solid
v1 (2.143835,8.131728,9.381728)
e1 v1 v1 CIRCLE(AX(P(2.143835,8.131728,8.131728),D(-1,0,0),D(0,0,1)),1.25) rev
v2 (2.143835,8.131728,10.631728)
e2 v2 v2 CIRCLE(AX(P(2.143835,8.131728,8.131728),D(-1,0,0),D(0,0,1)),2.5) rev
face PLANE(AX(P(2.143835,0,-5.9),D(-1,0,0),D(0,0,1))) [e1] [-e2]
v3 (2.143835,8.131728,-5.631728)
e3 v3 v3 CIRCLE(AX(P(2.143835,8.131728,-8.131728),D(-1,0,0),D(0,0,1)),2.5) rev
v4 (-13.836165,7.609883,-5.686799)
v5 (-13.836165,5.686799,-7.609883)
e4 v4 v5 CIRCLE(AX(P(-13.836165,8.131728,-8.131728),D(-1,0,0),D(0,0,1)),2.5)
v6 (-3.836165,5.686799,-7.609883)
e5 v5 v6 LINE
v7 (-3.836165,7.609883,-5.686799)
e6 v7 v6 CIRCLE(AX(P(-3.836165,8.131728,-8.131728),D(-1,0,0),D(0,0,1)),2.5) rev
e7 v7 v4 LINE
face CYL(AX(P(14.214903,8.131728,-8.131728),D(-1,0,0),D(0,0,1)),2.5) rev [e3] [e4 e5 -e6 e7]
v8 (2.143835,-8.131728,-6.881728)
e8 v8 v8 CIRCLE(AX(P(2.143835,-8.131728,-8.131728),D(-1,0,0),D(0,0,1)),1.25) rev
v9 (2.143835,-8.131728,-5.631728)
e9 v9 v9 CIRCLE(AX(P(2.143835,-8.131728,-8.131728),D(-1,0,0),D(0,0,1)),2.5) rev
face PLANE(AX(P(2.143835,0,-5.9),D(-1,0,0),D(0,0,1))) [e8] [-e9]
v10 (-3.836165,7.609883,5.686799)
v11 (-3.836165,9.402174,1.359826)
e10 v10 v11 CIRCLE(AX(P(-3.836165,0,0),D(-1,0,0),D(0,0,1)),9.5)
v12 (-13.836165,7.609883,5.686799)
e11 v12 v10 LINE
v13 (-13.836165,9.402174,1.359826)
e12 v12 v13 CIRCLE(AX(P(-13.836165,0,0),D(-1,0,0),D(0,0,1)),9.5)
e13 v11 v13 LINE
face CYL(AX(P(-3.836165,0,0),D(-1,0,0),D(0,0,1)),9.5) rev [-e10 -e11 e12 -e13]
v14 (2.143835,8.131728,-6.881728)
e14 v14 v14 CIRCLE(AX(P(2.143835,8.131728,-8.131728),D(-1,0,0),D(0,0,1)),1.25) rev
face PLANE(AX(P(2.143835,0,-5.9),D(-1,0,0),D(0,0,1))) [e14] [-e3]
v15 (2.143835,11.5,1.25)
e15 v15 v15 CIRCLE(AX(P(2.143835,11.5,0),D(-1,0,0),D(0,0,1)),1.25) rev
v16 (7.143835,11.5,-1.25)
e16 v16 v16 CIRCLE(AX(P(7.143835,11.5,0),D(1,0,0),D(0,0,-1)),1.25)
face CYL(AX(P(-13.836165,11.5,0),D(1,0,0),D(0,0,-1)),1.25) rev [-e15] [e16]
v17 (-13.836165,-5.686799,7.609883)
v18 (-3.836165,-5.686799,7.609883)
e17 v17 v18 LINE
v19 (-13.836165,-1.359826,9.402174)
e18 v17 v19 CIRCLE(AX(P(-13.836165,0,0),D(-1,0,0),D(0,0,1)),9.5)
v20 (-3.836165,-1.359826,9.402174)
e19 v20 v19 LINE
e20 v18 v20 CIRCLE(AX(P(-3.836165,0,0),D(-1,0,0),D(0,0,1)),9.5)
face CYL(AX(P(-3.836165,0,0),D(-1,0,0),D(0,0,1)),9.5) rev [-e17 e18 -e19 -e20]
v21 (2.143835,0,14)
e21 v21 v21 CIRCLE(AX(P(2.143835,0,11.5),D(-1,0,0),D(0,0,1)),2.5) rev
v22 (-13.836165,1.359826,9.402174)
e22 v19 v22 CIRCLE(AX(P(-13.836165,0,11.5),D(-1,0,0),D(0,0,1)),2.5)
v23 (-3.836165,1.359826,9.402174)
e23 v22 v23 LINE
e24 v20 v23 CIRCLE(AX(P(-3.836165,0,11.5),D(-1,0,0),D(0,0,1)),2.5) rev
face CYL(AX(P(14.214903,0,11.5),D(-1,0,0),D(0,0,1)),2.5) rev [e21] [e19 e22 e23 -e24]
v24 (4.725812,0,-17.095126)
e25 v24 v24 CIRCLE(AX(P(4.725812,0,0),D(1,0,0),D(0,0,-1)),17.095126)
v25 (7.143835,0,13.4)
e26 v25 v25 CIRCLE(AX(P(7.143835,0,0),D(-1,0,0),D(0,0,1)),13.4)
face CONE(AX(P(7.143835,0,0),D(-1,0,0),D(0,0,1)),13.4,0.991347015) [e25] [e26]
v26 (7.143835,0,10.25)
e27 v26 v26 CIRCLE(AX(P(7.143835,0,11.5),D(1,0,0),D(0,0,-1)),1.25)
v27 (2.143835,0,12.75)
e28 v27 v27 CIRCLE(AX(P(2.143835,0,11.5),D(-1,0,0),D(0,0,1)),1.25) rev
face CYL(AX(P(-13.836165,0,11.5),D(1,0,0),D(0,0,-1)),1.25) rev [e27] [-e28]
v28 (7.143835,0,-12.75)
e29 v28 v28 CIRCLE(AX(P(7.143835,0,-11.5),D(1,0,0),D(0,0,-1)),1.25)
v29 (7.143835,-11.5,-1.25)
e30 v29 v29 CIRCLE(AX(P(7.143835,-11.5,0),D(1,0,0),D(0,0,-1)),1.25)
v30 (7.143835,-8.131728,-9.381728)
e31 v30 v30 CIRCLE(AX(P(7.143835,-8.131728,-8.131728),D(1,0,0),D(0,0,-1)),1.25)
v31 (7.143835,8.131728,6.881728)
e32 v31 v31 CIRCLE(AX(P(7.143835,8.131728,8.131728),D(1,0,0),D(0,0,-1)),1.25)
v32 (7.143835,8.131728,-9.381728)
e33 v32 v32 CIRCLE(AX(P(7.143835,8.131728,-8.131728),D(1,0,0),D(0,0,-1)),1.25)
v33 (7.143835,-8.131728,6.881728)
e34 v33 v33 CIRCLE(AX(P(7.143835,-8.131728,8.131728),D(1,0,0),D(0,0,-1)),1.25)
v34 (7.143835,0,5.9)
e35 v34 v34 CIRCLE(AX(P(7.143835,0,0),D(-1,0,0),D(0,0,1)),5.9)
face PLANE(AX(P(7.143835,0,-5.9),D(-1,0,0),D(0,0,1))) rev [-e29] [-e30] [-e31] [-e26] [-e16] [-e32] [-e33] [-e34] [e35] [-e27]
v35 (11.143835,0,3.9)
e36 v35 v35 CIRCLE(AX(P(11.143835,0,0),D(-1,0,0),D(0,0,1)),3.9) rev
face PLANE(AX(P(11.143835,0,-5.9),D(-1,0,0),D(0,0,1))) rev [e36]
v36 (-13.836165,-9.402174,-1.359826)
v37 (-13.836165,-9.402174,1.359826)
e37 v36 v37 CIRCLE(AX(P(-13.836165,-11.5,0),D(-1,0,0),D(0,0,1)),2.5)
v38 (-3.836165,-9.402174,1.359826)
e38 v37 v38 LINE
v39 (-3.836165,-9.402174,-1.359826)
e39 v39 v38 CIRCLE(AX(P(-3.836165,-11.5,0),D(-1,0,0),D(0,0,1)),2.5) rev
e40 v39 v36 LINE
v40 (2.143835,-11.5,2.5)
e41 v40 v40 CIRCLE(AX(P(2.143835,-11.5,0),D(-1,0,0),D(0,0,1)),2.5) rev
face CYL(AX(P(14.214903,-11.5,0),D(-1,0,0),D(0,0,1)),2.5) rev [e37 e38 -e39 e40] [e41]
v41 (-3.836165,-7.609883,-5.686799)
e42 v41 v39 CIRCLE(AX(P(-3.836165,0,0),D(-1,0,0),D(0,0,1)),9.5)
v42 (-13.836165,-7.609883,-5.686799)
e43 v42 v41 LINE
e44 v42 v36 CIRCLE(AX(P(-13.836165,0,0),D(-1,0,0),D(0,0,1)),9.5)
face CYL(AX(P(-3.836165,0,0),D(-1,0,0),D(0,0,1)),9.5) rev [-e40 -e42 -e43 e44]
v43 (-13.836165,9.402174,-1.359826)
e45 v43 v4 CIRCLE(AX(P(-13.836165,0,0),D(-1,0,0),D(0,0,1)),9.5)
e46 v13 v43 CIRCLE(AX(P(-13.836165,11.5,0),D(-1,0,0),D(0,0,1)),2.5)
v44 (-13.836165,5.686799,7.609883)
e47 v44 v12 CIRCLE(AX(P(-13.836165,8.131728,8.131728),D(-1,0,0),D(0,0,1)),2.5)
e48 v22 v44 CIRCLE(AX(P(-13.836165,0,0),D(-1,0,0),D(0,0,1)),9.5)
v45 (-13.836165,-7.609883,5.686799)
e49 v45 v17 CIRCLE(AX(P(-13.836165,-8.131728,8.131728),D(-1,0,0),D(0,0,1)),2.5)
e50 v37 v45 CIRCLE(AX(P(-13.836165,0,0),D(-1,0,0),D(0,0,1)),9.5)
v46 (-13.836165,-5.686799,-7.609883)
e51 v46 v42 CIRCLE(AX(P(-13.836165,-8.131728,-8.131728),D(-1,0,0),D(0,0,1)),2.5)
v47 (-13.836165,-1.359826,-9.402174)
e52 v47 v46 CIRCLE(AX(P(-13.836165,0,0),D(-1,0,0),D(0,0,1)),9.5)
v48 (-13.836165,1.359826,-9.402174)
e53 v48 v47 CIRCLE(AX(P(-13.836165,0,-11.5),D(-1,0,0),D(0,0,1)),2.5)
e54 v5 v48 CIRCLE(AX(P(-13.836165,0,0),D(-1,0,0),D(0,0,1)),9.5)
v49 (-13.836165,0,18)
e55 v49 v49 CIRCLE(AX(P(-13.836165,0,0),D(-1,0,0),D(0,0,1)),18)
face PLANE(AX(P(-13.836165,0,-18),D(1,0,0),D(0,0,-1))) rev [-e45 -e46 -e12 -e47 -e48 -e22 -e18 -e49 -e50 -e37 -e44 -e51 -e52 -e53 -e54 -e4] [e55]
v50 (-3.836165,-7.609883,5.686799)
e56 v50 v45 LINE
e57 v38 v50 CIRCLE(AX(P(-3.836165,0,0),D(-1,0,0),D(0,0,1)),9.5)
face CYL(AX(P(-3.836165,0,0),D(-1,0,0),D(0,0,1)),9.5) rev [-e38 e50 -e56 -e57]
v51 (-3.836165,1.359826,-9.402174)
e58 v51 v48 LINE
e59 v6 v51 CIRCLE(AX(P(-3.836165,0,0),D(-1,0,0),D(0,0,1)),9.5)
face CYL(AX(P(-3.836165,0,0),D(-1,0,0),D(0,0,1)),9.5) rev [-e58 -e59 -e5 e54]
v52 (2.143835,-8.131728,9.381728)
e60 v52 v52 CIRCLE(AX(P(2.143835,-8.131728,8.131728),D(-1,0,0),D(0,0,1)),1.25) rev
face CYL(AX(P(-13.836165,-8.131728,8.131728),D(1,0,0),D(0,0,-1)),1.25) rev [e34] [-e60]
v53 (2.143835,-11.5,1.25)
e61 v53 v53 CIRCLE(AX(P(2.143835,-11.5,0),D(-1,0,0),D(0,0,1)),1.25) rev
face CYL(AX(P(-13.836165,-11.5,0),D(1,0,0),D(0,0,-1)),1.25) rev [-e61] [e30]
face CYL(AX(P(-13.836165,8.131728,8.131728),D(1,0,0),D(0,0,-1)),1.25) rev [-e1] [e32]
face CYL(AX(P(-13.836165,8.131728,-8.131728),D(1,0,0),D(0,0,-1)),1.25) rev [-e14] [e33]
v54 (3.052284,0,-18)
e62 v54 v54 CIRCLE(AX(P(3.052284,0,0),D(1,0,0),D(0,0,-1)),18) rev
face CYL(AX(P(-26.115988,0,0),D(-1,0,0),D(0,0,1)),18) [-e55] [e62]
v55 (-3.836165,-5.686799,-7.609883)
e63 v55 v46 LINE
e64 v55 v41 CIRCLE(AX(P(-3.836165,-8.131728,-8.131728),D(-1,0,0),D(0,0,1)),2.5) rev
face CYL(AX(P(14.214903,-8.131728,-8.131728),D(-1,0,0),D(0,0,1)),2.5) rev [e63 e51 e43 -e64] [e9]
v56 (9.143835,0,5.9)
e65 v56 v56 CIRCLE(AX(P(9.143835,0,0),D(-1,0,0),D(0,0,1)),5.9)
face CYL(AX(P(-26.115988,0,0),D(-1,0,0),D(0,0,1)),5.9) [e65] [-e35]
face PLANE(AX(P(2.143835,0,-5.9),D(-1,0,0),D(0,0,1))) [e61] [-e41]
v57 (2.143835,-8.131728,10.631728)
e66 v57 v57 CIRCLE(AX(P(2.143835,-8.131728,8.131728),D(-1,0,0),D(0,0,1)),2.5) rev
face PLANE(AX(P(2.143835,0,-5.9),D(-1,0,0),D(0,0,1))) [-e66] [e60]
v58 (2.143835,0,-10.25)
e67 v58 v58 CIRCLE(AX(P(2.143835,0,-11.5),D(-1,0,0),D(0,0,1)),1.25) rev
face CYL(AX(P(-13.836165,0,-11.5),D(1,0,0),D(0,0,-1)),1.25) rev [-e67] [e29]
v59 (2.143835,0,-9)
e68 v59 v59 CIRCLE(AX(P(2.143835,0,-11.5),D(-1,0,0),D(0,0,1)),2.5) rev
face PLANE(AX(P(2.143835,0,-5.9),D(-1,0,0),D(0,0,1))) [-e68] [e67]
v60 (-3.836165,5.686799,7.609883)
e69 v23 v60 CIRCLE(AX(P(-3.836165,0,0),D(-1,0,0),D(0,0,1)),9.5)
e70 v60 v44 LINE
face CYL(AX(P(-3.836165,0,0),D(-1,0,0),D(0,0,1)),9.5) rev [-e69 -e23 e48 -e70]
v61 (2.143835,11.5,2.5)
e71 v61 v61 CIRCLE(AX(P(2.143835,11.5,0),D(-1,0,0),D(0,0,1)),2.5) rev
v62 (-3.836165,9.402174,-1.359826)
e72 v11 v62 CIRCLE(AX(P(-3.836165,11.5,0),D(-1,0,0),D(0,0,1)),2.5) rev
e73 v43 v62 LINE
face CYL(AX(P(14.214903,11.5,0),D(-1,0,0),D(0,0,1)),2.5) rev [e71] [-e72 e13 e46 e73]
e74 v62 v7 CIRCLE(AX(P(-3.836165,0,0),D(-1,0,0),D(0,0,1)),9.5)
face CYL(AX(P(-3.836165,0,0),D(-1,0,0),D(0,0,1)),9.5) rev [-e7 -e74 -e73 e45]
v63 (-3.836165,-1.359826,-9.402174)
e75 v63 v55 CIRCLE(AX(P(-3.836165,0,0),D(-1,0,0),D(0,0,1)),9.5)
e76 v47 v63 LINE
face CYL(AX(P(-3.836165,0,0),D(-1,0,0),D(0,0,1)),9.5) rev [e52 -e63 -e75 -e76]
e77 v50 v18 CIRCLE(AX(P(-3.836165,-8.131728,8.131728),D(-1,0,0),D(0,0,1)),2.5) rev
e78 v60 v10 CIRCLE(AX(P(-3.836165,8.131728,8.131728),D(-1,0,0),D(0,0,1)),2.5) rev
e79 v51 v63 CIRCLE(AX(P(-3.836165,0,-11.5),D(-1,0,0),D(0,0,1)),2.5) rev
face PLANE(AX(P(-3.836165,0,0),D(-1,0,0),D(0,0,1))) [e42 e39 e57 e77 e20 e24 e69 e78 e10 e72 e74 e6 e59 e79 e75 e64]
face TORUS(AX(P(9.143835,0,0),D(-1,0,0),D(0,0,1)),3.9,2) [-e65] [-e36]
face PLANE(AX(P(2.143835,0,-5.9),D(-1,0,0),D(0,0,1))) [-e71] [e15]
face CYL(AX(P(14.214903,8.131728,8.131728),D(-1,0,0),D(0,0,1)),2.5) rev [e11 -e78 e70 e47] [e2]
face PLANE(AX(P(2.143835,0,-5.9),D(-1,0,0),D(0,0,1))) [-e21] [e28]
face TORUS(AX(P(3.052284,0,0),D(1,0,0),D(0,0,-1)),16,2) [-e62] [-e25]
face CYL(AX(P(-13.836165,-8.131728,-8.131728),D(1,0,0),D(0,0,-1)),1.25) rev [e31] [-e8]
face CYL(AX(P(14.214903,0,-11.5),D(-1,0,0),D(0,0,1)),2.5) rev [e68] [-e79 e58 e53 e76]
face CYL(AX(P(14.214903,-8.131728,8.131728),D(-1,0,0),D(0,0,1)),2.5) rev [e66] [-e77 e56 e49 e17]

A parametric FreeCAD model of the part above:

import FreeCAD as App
import Part
import Sketcher

V = App.Vector
Q = App.Units.Quantity


def edges_at(feature, points):
    """Names of the edges that pass closest to the given points."""
    edges = feature.Shape.Edges
    near = lambda p: min(range(len(edges)), key=lambda i: edges[i].distToShape(Part.Vertex(*p))[0])
    return sorted({f"Edge{near(p) + 1}" for p in points})

doc = App.newDocument("Part")
body = doc.addObject("PartDesign::Body", "Body")

# Sketch on XZ plane
sketch1 = doc.addObject("Sketcher::SketchObject", "Sketch")
body.addObject(sketch1)
sketch1.AttachmentSupport = (doc.XZ_Plane, [""])
sketch1.MapMode = "FlatFace"
sketch1.addGeometry(Part.LineSegment(V(7.1, -5.9, 0), V(7.1, -13.4, 0)), False)
sketch1.addGeometry(Part.LineSegment(V(7.1, -13.4, 0), V(4.1, -18, 0)), False)
sketch1.addGeometry(Part.LineSegment(V(4.1, -18, 0), V(-13.8, -18, 0)), False)
sketch1.addGeometry(Part.LineSegment(V(-13.8, -18, 0), V(-13.8, 0, 0)), False)
sketch1.addGeometry(Part.LineSegment(V(-13.8, 0, 0), V(11.1, 0, 0)), False)
sketch1.addGeometry(Part.LineSegment(V(11.1, 0, 0), V(11.1, -5.9, 0)), False)
sketch1.addGeometry(Part.LineSegment(V(11.1, -5.9, 0), V(7.1, -5.9, 0)), False)
sketch1.addConstraint(Sketcher.Constraint("Coincident", 0, 2, 1, 1))
sketch1.addConstraint(Sketcher.Constraint("Coincident", 1, 2, 2, 1))
sketch1.addConstraint(Sketcher.Constraint("Coincident", 2, 2, 3, 1))
sketch1.addConstraint(Sketcher.Constraint("Coincident", 3, 2, 4, 1))
sketch1.addConstraint(Sketcher.Constraint("Coincident", 4, 2, 5, 1))
sketch1.addConstraint(Sketcher.Constraint("Coincident", 5, 2, 6, 1))
sketch1.addConstraint(Sketcher.Constraint("Coincident", 6, 2, 0, 1))
sketch1.addConstraint(Sketcher.Constraint("Vertical", 0))
sketch1.addConstraint(Sketcher.Constraint("Horizontal", 2))
sketch1.addConstraint(Sketcher.Constraint("Vertical", 3))
sketch1.addConstraint(Sketcher.Constraint("Horizontal", 4))
sketch1.addConstraint(Sketcher.Constraint("Vertical", 5))
sketch1.addConstraint(Sketcher.Constraint("Horizontal", 6))
sketch1.addConstraint(Sketcher.Constraint("PointOnObject", 3, 2, -1))
sketch1.addConstraint(Sketcher.Constraint("DistanceX", 6, 2, 6, 1, 4.0))
sketch1.addConstraint(Sketcher.Constraint("DistanceY", 3, 1, 3, 2, 18.0))
sketch1.addConstraint(Sketcher.Constraint("DistanceY", 0, 2, 0, 1, 7.5))
sketch1.addConstraint(Sketcher.Constraint("DistanceY", 5, 2, 5, 1, 5.9))
sketch1.addConstraint(Sketcher.Constraint("Angle", 1, Q("-123.2 deg")))
sketch1.addConstraint(Sketcher.Constraint("DistanceX", 4, 1, 4, 2, 24.98))
sketch1.addConstraint(Sketcher.Constraint("DistanceX", -1, 1, 1, 2, 4.13368))
revolution = doc.addObject("PartDesign::Revolution", "Revolution")
body.addObject(revolution)
revolution.Profile = sketch1
revolution.ReferenceAxis = (sketch1, ["H_Axis"])
revolution.Angle = 360

# Sketch on YZ plane
sketch2 = doc.addObject("Sketcher::SketchObject", "Sketch001")
body.addObject(sketch2)
sketch2.AttachmentSupport = (doc.YZ_Plane, [""])
sketch2.MapMode = "FlatFace"
sketch2.AttachmentOffset = App.Placement(V(0, 0, 7.143835), App.Rotation())
sketch2.addGeometry(Part.Circle(V(11.5, 0, 0), V(0, 0, 1), 1.2), False)
sketch2.addGeometry(Part.Circle(V(8.1, -8.1, 0), V(0, 0, 1), 1.2), False)
sketch2.addGeometry(Part.Circle(V(0, -11.5, 0), V(0, 0, 1), 1.2), False)
sketch2.addGeometry(Part.Circle(V(-8.1, -8.1, 0), V(0, 0, 1), 1.2), False)
sketch2.addGeometry(Part.Circle(V(-11.5, 0, 0), V(0, 0, 1), 1.2), False)
sketch2.addGeometry(Part.Circle(V(-8.1, 8.1, 0), V(0, 0, 1), 1.2), False)
sketch2.addGeometry(Part.Circle(V(0, 11.5, 0), V(0, 0, 1), 1.2), False)
sketch2.addGeometry(Part.Circle(V(8.1, 8.1, 0), V(0, 0, 1), 1.2), False)
sketch2.addConstraint(Sketcher.Constraint("Equal", 0, 1))
sketch2.addConstraint(Sketcher.Constraint("Equal", 1, 2))
sketch2.addConstraint(Sketcher.Constraint("Equal", 2, 3))
sketch2.addConstraint(Sketcher.Constraint("Equal", 3, 4))
sketch2.addConstraint(Sketcher.Constraint("Equal", 4, 5))
sketch2.addConstraint(Sketcher.Constraint("Equal", 5, 6))
sketch2.addConstraint(Sketcher.Constraint("Equal", 6, 7))
sketch2.addConstraint(Sketcher.Constraint("Symmetric", 0, 3, 4, 3, -1, 1))
sketch2.addConstraint(Sketcher.Constraint("Symmetric", 1, 3, 5, 3, -1, 1))
sketch2.addConstraint(Sketcher.Constraint("Symmetric", 2, 3, 6, 3, -1, 1))
sketch2.addConstraint(Sketcher.Constraint("Symmetric", 3, 3, 7, 3, -1, 1))
sketch2.addConstraint(Sketcher.Constraint("Symmetric", 1, 3, 3, 3, -2))
sketch2.addConstraint(Sketcher.Constraint("PointOnObject", 0, 3, -1))
sketch2.addConstraint(Sketcher.Constraint("PointOnObject", 2, 3, -2))
sketch2.addConstraint(Sketcher.Constraint("Diameter", 0, 2.5))
sketch2.addConstraint(Sketcher.Constraint("DistanceX", 4, 3, 0, 3, 23.0))
sketch2.addConstraint(Sketcher.Constraint("DistanceY", 2, 3, -1, 1, 11.5))
sketch2.addConstraint(Sketcher.Constraint("DistanceX", -1, 1, 1, 3, 8.131728))
sketch2.addConstraint(Sketcher.Constraint("DistanceY", 1, 3, -1, 1, 8.131728))
pocket1 = doc.addObject("PartDesign::Pocket", "Pocket")
body.addObject(pocket1)
pocket1.Profile = sketch2
pocket1.Type = "ThroughAll"

# Sketch on YZ plane
sketch3 = doc.addObject("Sketcher::SketchObject", "Sketch002")
body.addObject(sketch3)
sketch3.AttachmentSupport = (doc.YZ_Plane, [""])
sketch3.MapMode = "FlatFace"
sketch3.AttachmentOffset = App.Placement(V(0, 0, -13.836165), App.Rotation())
sketch3.addGeometry(Part.Circle(V(11.5, 0, 0), V(0, 0, 1), 2.5), False)
sketch3.addGeometry(Part.Circle(V(8.1, 8.1, 0), V(0, 0, 1), 2.5), False)
sketch3.addGeometry(Part.Circle(V(0, 11.5, 0), V(0, 0, 1), 2.5), False)
sketch3.addGeometry(Part.Circle(V(-8.1, 8.1, 0), V(0, 0, 1), 2.5), False)
sketch3.addGeometry(Part.Circle(V(-11.5, 0, 0), V(0, 0, 1), 2.5), False)
sketch3.addGeometry(Part.Circle(V(-8.1, -8.1, 0), V(0, 0, 1), 2.5), False)
sketch3.addGeometry(Part.Circle(V(0, -11.5, 0), V(0, 0, 1), 2.5), False)
sketch3.addGeometry(Part.Circle(V(8.1, -8.1, 0), V(0, 0, 1), 2.5), False)
sketch3.addConstraint(Sketcher.Constraint("Equal", 0, 1))
sketch3.addConstraint(Sketcher.Constraint("Equal", 1, 2))
sketch3.addConstraint(Sketcher.Constraint("Equal", 2, 3))
sketch3.addConstraint(Sketcher.Constraint("Equal", 3, 4))
sketch3.addConstraint(Sketcher.Constraint("Equal", 4, 5))
sketch3.addConstraint(Sketcher.Constraint("Equal", 5, 6))
sketch3.addConstraint(Sketcher.Constraint("Equal", 6, 7))
sketch3.addConstraint(Sketcher.Constraint("Symmetric", 0, 3, 4, 3, -1, 1))
sketch3.addConstraint(Sketcher.Constraint("Symmetric", 1, 3, 5, 3, -1, 1))
sketch3.addConstraint(Sketcher.Constraint("Symmetric", 2, 3, 6, 3, -1, 1))
sketch3.addConstraint(Sketcher.Constraint("Symmetric", 3, 3, 7, 3, -1, 1))
sketch3.addConstraint(Sketcher.Constraint("Symmetric", 1, 3, 3, 3, -2))
sketch3.addConstraint(Sketcher.Constraint("PointOnObject", 0, 3, -1))
sketch3.addConstraint(Sketcher.Constraint("PointOnObject", 2, 3, -2))
sketch3.addConstraint(Sketcher.Constraint("Diameter", 0, 5.0))
sketch3.addConstraint(Sketcher.Constraint("DistanceX", 4, 3, 0, 3, 23.0))
sketch3.addConstraint(Sketcher.Constraint("DistanceY", -1, 1, 2, 3, 11.5))
sketch3.addConstraint(Sketcher.Constraint("DistanceX", -1, 1, 1, 3, 8.131728))
sketch3.addConstraint(Sketcher.Constraint("DistanceY", -1, 1, 1, 3, 8.131728))
pocket2 = doc.addObject("PartDesign::Pocket", "Pocket001")
body.addObject(pocket2)
pocket2.Profile = sketch3
pocket2.Length = 15.98
pocket2.Reversed = True

# Sketch on YZ plane
sketch4 = doc.addObject("Sketcher::SketchObject", "Sketch003")
body.addObject(sketch4)
sketch4.AttachmentSupport = (doc.YZ_Plane, [""])
sketch4.MapMode = "FlatFace"
sketch4.AttachmentOffset = App.Placement(V(0, 0, -13.836165), App.Rotation())
sketch4.addGeometry(Part.Circle(V(0, 0, 0), V(0, 0, 1), 10), False)
sketch4.addConstraint(Sketcher.Constraint("Coincident", 0, 3, -1, 1))
sketch4.addConstraint(Sketcher.Constraint("Diameter", 0, 19.0))
pocket3 = doc.addObject("PartDesign::Pocket", "Pocket002")
body.addObject(pocket3)
pocket3.Profile = sketch4
pocket3.Length = 10
pocket3.Reversed = True
doc.recompute()

fillet = doc.addObject("PartDesign::Fillet", "Fillet")
body.addObject(fillet)
fillet.Base = (pocket3, edges_at(pocket3, [(11.144, 0, 5.9)]))
fillet.Radius = 2
doc.recompute()

fillet2 = doc.addObject("PartDesign::Fillet", "Fillet001")
body.addObject(fillet2)
fillet2.Base = (fillet, edges_at(fillet, [(4.134, 0, 18)]))
fillet2.Radius = 2

doc.recompute()
